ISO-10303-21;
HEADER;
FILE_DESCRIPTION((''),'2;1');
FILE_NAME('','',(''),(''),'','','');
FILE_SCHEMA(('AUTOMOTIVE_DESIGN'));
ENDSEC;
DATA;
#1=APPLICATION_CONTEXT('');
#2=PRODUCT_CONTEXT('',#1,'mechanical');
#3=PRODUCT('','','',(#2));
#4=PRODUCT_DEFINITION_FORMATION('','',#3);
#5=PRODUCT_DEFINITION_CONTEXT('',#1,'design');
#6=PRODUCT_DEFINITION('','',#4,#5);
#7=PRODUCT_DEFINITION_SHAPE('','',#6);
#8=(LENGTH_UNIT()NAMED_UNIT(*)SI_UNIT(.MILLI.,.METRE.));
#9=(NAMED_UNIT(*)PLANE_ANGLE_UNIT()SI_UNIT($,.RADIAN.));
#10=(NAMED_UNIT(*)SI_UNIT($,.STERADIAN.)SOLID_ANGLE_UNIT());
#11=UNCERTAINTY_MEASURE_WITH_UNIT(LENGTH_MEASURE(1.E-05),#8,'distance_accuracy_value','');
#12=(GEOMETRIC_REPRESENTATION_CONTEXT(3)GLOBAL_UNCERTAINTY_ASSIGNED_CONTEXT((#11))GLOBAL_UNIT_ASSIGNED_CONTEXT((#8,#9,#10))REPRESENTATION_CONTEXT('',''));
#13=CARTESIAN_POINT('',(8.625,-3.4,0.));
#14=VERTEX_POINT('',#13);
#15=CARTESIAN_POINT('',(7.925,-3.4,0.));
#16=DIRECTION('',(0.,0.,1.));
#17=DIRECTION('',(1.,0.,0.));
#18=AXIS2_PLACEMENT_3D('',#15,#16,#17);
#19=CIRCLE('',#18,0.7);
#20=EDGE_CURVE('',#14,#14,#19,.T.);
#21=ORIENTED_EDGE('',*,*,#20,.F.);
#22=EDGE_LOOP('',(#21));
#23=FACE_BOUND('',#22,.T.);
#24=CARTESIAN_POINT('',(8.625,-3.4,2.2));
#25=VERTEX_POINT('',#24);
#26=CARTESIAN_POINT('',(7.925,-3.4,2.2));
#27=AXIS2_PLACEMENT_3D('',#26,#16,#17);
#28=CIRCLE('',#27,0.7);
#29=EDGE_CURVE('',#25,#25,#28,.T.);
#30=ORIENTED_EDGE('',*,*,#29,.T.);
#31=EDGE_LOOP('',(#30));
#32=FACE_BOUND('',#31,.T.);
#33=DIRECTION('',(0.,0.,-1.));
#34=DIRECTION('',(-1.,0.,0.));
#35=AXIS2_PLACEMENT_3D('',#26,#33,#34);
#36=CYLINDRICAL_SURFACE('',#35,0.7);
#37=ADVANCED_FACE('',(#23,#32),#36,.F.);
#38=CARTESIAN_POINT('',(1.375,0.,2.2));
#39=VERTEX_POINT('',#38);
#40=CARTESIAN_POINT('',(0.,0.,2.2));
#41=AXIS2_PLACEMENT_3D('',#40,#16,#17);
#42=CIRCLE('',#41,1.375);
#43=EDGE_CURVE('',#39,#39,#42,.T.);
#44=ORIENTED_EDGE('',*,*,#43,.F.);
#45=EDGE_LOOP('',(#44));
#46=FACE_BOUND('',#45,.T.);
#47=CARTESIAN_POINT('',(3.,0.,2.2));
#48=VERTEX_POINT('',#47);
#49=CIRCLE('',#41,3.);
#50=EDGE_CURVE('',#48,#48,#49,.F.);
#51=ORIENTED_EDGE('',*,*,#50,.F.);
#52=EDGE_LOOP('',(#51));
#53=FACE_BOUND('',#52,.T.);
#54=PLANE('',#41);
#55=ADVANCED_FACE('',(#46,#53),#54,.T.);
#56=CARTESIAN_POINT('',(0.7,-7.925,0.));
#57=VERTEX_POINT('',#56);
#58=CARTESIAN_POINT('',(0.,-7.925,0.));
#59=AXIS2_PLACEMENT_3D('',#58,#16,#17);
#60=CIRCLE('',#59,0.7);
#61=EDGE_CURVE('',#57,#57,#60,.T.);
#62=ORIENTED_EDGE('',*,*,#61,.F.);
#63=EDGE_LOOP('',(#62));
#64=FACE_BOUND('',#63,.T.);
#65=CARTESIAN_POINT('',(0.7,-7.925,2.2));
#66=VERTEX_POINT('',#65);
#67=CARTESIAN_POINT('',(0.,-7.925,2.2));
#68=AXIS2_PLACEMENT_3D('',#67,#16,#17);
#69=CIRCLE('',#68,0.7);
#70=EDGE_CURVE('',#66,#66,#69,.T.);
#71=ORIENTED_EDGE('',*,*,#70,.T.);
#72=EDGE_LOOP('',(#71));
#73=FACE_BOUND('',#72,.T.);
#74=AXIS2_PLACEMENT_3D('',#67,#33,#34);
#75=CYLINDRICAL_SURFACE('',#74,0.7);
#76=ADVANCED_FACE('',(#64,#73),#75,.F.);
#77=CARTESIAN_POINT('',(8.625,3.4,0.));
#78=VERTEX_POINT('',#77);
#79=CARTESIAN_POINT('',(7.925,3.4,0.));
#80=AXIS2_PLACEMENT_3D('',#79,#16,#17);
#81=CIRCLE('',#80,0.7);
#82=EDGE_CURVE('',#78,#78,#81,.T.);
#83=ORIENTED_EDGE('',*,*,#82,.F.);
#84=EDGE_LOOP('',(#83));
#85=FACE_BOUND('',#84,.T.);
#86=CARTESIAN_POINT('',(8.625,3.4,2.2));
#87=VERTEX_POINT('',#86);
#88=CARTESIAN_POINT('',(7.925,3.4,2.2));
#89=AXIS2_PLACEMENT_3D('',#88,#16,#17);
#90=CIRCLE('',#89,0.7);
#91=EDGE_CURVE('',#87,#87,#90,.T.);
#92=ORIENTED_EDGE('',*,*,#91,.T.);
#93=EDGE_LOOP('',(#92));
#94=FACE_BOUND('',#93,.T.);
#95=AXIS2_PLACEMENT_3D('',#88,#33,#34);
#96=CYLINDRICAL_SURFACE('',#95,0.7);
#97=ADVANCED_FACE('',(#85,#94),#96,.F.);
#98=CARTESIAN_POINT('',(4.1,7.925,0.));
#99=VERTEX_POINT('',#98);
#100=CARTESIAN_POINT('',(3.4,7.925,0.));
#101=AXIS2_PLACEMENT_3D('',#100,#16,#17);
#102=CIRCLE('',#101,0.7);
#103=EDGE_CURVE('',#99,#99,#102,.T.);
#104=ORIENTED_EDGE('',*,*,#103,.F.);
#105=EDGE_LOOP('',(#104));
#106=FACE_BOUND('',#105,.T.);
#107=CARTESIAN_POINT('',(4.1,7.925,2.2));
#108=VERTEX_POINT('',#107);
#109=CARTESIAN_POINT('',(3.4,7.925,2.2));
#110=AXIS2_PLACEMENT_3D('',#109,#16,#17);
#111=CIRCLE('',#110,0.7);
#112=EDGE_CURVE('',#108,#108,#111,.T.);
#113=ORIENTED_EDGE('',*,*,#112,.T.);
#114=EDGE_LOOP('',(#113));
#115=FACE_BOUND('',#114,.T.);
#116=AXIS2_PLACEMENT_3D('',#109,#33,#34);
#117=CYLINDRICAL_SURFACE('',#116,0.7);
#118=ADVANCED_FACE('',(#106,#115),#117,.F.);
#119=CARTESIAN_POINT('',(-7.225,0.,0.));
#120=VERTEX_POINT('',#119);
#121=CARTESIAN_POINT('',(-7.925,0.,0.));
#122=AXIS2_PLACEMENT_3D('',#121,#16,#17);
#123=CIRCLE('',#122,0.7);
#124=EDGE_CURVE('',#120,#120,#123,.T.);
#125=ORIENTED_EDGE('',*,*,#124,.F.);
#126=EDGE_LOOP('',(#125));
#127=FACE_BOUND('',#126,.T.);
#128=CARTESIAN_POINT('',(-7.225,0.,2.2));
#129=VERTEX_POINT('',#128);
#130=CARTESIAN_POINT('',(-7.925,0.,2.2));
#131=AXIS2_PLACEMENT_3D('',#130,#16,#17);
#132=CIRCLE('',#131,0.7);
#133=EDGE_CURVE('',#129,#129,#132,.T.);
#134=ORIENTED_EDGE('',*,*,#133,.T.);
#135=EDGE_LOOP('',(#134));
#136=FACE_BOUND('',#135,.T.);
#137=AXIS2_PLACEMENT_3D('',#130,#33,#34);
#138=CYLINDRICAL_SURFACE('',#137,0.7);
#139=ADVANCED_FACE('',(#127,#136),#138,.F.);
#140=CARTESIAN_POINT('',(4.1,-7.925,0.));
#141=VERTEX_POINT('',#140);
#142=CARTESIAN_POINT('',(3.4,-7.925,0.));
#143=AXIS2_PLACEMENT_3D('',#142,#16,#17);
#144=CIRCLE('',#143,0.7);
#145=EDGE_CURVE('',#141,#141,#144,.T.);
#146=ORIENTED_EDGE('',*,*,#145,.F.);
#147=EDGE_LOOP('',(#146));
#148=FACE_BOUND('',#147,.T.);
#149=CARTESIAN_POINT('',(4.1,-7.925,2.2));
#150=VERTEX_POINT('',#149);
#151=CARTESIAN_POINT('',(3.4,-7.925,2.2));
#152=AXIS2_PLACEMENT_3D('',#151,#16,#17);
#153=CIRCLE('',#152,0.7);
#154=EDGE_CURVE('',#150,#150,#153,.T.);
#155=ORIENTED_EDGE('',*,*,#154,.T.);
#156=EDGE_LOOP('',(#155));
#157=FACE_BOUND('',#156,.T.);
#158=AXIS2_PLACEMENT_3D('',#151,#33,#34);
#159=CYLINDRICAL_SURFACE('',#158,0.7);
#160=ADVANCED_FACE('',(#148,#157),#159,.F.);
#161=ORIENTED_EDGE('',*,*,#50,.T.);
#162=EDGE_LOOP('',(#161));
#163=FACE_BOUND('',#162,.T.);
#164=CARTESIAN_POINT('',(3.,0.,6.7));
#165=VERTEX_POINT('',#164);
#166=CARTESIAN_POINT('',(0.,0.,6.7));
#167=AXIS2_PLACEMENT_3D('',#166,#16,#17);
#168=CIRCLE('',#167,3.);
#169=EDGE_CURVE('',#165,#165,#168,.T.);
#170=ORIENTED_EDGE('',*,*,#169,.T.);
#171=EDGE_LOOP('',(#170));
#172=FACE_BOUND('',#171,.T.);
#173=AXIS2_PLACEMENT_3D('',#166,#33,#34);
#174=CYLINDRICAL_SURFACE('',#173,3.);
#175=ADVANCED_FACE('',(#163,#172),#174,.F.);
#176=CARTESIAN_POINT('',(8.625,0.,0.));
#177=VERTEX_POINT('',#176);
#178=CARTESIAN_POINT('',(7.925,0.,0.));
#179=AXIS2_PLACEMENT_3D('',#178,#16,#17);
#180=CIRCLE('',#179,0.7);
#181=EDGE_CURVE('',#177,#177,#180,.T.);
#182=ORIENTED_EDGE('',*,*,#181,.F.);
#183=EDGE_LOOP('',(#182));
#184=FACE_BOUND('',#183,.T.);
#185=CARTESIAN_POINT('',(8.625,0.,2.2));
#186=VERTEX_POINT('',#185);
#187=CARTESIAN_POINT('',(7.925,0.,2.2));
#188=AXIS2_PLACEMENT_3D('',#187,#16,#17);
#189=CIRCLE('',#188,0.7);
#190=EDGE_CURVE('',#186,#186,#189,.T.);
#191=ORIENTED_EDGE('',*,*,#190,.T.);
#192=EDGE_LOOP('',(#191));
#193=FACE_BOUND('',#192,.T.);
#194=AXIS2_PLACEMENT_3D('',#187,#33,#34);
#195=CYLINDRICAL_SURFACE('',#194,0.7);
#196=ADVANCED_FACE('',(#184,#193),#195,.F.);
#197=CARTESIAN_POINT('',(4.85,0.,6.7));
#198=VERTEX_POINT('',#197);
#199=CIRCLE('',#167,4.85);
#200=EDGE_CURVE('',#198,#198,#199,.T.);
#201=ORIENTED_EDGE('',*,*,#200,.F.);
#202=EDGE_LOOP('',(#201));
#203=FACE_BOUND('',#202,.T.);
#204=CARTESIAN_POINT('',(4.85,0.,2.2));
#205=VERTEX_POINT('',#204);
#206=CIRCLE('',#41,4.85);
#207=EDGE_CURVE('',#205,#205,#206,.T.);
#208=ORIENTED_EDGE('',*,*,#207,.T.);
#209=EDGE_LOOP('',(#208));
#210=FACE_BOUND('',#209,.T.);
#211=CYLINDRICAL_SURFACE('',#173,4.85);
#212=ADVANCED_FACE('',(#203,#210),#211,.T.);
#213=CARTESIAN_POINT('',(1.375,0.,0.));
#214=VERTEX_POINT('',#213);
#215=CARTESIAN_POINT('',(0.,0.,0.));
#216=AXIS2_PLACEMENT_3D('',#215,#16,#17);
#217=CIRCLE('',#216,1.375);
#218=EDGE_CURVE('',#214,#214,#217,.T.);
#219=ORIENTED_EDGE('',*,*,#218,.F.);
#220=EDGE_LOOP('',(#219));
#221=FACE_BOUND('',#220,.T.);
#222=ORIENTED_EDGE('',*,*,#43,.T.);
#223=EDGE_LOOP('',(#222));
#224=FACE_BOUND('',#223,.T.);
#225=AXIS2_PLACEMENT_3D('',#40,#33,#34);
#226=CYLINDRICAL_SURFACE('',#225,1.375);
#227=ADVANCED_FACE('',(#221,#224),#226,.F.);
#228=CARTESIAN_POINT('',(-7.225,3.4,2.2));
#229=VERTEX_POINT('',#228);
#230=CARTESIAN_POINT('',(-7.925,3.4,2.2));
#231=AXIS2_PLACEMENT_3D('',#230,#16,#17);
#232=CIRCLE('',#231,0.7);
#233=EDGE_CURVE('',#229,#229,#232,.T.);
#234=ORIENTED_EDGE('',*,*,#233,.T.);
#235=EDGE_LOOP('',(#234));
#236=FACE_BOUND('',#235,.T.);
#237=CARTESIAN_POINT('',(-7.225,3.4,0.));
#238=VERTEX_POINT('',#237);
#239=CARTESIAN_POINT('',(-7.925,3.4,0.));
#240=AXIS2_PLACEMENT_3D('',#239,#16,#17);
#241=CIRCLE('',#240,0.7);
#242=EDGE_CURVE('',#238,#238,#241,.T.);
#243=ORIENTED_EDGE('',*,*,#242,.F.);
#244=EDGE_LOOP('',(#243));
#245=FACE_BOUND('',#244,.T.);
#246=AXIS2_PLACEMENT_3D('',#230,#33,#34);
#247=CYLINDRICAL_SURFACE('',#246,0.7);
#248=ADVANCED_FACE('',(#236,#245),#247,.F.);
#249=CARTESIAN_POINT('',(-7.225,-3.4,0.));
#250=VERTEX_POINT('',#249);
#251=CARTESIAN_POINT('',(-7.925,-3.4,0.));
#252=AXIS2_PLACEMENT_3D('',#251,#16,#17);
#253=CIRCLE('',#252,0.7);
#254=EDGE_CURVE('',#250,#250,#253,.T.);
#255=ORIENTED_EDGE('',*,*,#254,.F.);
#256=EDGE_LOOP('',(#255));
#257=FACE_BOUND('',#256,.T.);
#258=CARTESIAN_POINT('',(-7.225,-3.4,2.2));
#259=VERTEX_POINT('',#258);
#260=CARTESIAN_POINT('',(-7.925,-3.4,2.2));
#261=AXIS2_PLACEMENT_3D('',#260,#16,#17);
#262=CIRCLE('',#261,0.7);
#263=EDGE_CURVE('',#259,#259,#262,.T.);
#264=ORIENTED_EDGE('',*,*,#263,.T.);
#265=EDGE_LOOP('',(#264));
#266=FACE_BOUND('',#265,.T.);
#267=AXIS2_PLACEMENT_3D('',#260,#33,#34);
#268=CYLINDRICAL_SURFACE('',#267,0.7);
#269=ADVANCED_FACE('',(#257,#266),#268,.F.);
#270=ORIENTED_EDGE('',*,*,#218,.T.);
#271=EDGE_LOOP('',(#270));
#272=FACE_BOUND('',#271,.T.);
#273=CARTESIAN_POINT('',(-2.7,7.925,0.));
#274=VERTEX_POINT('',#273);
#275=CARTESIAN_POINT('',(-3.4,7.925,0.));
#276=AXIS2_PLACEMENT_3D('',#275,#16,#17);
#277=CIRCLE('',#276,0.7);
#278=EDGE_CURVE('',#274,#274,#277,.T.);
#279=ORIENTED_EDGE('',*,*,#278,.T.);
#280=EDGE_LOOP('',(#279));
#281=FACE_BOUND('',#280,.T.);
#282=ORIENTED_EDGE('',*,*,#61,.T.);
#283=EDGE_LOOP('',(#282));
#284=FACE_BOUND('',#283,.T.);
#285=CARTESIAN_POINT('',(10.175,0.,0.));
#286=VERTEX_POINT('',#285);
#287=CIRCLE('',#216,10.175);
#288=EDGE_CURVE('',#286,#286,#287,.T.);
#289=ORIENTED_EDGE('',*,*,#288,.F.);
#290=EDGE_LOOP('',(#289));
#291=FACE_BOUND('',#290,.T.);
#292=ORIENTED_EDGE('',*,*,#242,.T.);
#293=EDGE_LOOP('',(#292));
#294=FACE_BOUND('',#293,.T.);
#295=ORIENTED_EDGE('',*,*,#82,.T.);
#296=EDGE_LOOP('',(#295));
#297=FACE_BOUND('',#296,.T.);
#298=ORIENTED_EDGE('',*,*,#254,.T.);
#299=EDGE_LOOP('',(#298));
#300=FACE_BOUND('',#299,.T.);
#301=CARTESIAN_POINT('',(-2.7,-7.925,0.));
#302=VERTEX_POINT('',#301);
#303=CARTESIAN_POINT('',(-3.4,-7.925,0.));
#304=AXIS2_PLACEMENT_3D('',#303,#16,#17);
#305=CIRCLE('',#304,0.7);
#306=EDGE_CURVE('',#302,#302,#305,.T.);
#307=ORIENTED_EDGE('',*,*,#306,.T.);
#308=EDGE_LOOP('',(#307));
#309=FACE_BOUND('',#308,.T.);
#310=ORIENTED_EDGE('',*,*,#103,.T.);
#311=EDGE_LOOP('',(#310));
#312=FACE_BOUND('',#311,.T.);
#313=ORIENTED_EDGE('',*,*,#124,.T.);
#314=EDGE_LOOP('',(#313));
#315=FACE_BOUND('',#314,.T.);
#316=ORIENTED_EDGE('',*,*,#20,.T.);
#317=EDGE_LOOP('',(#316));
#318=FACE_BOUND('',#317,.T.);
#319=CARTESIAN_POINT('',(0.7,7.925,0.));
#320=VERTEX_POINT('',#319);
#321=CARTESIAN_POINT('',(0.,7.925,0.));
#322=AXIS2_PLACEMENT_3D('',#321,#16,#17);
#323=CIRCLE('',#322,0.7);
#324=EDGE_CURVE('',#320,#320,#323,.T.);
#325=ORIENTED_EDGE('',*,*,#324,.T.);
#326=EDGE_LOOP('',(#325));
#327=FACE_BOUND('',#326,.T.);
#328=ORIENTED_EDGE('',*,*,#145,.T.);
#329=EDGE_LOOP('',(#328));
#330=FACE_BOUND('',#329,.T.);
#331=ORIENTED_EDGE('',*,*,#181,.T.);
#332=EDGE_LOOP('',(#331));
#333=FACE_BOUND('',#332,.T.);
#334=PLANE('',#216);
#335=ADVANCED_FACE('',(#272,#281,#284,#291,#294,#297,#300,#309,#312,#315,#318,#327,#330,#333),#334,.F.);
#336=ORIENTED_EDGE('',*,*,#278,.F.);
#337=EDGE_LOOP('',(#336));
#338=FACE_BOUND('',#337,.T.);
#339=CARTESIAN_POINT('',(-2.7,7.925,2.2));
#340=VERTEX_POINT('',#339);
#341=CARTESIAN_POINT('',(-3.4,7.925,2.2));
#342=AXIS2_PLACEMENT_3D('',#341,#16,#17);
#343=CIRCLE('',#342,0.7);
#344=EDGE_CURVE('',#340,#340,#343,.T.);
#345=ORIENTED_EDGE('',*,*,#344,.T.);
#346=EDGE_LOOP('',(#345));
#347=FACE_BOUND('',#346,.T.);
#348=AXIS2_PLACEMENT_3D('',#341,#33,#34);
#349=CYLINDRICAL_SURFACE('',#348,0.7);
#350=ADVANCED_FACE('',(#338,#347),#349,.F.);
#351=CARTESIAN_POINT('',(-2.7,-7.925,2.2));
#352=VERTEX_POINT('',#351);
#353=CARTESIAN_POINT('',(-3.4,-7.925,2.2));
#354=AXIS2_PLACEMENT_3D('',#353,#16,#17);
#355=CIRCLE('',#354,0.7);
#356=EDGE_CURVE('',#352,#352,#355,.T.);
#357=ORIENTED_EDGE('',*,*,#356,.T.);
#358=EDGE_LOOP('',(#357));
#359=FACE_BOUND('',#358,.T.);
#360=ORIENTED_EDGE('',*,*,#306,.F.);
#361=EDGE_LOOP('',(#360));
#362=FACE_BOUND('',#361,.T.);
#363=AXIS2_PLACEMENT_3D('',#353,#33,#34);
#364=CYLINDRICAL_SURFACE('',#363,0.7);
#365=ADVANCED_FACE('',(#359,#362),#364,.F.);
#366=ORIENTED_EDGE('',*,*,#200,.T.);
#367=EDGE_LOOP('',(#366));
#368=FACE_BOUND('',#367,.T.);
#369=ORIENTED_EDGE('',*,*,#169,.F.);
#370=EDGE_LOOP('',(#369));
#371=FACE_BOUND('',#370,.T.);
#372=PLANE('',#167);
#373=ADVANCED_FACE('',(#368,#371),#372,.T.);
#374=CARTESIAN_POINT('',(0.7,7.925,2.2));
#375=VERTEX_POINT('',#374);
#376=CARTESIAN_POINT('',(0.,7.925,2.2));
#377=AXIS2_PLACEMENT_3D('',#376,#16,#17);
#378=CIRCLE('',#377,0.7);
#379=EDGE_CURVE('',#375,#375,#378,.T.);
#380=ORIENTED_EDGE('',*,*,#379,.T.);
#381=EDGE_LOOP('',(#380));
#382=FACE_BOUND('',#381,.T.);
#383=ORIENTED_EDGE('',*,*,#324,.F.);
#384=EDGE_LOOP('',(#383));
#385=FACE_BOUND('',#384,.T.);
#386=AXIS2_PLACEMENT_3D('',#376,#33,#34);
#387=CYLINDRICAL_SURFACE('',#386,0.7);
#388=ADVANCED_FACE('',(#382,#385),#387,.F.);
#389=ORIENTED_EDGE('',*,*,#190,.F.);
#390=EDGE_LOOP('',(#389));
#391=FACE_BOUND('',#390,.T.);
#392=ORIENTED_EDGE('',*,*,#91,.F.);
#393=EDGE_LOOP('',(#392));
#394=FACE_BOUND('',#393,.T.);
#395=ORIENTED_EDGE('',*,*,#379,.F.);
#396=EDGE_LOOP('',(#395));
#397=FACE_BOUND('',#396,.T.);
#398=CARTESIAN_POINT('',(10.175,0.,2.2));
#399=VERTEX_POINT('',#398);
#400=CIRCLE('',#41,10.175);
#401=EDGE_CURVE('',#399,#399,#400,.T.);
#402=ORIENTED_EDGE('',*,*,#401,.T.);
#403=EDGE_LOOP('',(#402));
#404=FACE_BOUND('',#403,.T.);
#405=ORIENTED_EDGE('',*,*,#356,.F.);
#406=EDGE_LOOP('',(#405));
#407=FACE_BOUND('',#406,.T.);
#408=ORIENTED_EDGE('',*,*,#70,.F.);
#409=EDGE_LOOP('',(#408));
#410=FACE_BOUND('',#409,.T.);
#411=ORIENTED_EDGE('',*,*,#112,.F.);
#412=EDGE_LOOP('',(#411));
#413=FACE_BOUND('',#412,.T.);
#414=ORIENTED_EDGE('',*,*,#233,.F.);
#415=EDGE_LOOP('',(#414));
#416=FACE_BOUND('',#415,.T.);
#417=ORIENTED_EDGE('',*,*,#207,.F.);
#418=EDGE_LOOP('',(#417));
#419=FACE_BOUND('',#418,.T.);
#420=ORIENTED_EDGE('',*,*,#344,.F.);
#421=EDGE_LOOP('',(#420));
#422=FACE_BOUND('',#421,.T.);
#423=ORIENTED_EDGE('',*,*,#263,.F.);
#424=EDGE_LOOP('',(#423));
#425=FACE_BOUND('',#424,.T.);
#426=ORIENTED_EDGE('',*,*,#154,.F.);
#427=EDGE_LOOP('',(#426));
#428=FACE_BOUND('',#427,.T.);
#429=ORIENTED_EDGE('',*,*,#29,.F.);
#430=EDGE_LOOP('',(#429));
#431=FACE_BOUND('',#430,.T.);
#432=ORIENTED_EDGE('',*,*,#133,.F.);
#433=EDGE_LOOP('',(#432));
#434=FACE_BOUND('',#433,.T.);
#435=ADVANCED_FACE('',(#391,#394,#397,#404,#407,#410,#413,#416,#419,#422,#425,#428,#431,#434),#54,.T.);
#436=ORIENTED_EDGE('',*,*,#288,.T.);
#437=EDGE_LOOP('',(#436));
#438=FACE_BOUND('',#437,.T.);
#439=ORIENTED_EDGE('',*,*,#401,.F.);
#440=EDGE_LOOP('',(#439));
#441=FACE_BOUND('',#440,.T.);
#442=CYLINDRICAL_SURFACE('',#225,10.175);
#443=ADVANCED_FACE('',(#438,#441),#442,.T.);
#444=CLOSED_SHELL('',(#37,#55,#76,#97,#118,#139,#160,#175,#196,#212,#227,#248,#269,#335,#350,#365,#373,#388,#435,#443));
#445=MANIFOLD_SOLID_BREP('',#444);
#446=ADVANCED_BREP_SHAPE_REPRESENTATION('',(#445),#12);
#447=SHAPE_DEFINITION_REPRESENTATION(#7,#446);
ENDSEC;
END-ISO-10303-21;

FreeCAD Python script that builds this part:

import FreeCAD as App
import Part
import Sketcher

V = App.Vector

doc = App.newDocument("Part")
params = doc.addObject("Spreadsheet::Sheet", "Params")
for row, (alias, value) in enumerate([
    ("sketch1_diameter", "1.4 mm"),
    ("sketch1_diameter2", "20.35 mm"),
    ("sketch1_diameter3", "2.75 mm"),
    ("pad1_length", "2.2 mm"),
    ("sketch2_diameter", "6 mm"),
    ("sketch2_diameter2", "9.7 mm"),
    ("pad2_length", "4.5 mm"),
], start=1):
    params.set(f"A{row}", alias)
    params.set(f"B{row}", "=" + value)
    params.setAlias(f"B{row}", alias)

body = doc.addObject("PartDesign::Body", "Body")

sketch1 = doc.addObject("Sketcher::SketchObject", "Sketch")
body.addObject(sketch1)
sketch1.AttachmentSupport = (doc.XY_Plane, [""])
sketch1.MapMode = "FlatFace"
sketch1.addGeometry(Part.Circle(V(0, 0, 0), V(0, 0, 1), 10.2), False)
sketch1.addGeometry(Part.Circle(V(-3.4, -7.9, 0), V(0, 0, 1), 0.7), False)
sketch1.addGeometry(Part.Circle(V(-7.9, -3.4, 0), V(0, 0, 1), 0.7), False)
sketch1.addGeometry(Part.Circle(V(0, -7.9, 0), V(0, 0, 1), 0.7), False)
sketch1.addGeometry(Part.Circle(V(3.4, -7.9, 0), V(0, 0, 1), 0.7), False)
sketch1.addGeometry(Part.Circle(V(7.9, -3.4, 0), V(0, 0, 1), 0.7), False)
sketch1.addGeometry(Part.Circle(V(-7.9, 0, 0), V(0, 0, 1), 0.7), False)
sketch1.addGeometry(Part.Circle(V(-7.9, 3.4, 0), V(0, 0, 1), 0.7), False)
sketch1.addGeometry(Part.Circle(V(-3.4, 7.9, 0), V(0, 0, 1), 0.7), False)
sketch1.addGeometry(Part.Circle(V(0, 0, 0), V(0, 0, 1), 1.4), False)
sketch1.addGeometry(Part.Circle(V(7.9, 0, 0), V(0, 0, 1), 0.7), False)
sketch1.addGeometry(Part.Circle(V(7.9, 3.4, 0), V(0, 0, 1), 0.7), False)
sketch1.addGeometry(Part.Circle(V(0, 7.9, 0), V(0, 0, 1), 0.7), False)
sketch1.addGeometry(Part.Circle(V(3.4, 7.9, 0), V(0, 0, 1), 0.7), False)
sketch1.addConstraint(Sketcher.Constraint("Coincident", 0, 3, -1, 1))
sketch1.addConstraint(Sketcher.Constraint("Coincident", 9, 3, -1, 1))
sketch1.addConstraint(Sketcher.Constraint("Equal", 1, 2))
sketch1.addConstraint(Sketcher.Constraint("Equal", 2, 3))
sketch1.addConstraint(Sketcher.Constraint("Equal", 3, 4))
sketch1.addConstraint(Sketcher.Constraint("Equal", 4, 5))
sketch1.addConstraint(Sketcher.Constraint("Equal", 5, 6))
sketch1.addConstraint(Sketcher.Constraint("Equal", 6, 7))
sketch1.addConstraint(Sketcher.Constraint("Equal", 7, 8))
sketch1.addConstraint(Sketcher.Constraint("Equal", 8, 10))
sketch1.addConstraint(Sketcher.Constraint("Equal", 10, 11))
sketch1.addConstraint(Sketcher.Constraint("Equal", 11, 12))
sketch1.addConstraint(Sketcher.Constraint("Equal", 12, 13))
sketch1.addConstraint(Sketcher.Constraint("Symmetric", 5, 3, 7, 3, -1, 1))
sketch1.addConstraint(Sketcher.Constraint("Symmetric", 4, 3, 8, 3, -1, 1))
sketch1.addConstraint(Sketcher.Constraint("Symmetric", 6, 3, 10, 3, -1, 1))
sketch1.addConstraint(Sketcher.Constraint("Symmetric", 2, 3, 11, 3, -1, 1))
sketch1.addConstraint(Sketcher.Constraint("Symmetric", 3, 3, 12, 3, -1, 1))
sketch1.addConstraint(Sketcher.Constraint("Symmetric", 1, 3, 13, 3, -1, 1))
sketch1.addConstraint(Sketcher.Constraint("Symmetric", 1, 3, 4, 3, -2))
sketch1.addConstraint(Sketcher.Constraint("Symmetric", 2, 3, 5, 3, -2))
sketch1.addConstraint(Sketcher.Constraint("PointOnObject", 3, 3, -2))
sketch1.addConstraint(Sketcher.Constraint("PointOnObject", 6, 3, -1))
sketch1.addConstraint(Sketcher.Constraint("Horizontal", 1, 3, 3, 3))
sketch1.addConstraint(Sketcher.Constraint("Vertical", 2, 3, 6, 3))
sketch1.addConstraint(Sketcher.Constraint("Diameter", 1, 1.4))
sketch1.addConstraint(Sketcher.Constraint("Diameter", 0, 20.35))
sketch1.addConstraint(Sketcher.Constraint("Diameter", 9, 2.75))
sketch1.addConstraint(Sketcher.Constraint("DistanceX", 1, 3, -1, 1, 3.4))
sketch1.addConstraint(Sketcher.Constraint("DistanceY", 2, 3, -1, 1, 3.4))
sketch1.addConstraint(Sketcher.Constraint("DistanceX", 2, 3, 5, 3, 15.85))
sketch1.addConstraint(Sketcher.Constraint("DistanceY", 1, 3, 8, 3, 15.85))
sketch1.setExpression("Constraints[25]", "Params.sketch1_diameter")
sketch1.setExpression("Constraints[26]", "Params.sketch1_diameter2")
sketch1.setExpression("Constraints[27]", "Params.sketch1_diameter3")
pad1 = doc.addObject("PartDesign::Pad", "Pad")
body.addObject(pad1)
pad1.Profile = sketch1
pad1.setExpression("Length", "Params.pad1_length")

sketch2 = doc.addObject("Sketcher::SketchObject", "Sketch001")
body.addObject(sketch2)
sketch2.AttachmentSupport = (doc.XY_Plane, [""])
sketch2.MapMode = "FlatFace"
sketch2.AttachmentOffset = App.Placement(V(0, 0, 2.2), App.Rotation())
sketch2.addGeometry(Part.Circle(V(0, 0, 0), V(0, 0, 1), 4.8), False)
sketch2.addGeometry(Part.Circle(V(0, 0, 0), V(0, 0, 1), 3), False)
sketch2.addConstraint(Sketcher.Constraint("Coincident", 0, 3, -1, 1))
sketch2.addConstraint(Sketcher.Constraint("Coincident", 1, 3, -1, 1))
sketch2.addConstraint(Sketcher.Constraint("Diameter", 1, 6.0))
sketch2.addConstraint(Sketcher.Constraint("Diameter", 0, 9.7))
sketch2.setExpression("Constraints[2]", "Params.sketch2_diameter")
sketch2.setExpression("Constraints[3]", "Params.sketch2_diameter2")
pad2 = doc.addObject("PartDesign::Pad", "Pad001")
body.addObject(pad2)
pad2.Profile = sketch2
pad2.setExpression("Length", "Params.pad2_length")

doc.recompute()
